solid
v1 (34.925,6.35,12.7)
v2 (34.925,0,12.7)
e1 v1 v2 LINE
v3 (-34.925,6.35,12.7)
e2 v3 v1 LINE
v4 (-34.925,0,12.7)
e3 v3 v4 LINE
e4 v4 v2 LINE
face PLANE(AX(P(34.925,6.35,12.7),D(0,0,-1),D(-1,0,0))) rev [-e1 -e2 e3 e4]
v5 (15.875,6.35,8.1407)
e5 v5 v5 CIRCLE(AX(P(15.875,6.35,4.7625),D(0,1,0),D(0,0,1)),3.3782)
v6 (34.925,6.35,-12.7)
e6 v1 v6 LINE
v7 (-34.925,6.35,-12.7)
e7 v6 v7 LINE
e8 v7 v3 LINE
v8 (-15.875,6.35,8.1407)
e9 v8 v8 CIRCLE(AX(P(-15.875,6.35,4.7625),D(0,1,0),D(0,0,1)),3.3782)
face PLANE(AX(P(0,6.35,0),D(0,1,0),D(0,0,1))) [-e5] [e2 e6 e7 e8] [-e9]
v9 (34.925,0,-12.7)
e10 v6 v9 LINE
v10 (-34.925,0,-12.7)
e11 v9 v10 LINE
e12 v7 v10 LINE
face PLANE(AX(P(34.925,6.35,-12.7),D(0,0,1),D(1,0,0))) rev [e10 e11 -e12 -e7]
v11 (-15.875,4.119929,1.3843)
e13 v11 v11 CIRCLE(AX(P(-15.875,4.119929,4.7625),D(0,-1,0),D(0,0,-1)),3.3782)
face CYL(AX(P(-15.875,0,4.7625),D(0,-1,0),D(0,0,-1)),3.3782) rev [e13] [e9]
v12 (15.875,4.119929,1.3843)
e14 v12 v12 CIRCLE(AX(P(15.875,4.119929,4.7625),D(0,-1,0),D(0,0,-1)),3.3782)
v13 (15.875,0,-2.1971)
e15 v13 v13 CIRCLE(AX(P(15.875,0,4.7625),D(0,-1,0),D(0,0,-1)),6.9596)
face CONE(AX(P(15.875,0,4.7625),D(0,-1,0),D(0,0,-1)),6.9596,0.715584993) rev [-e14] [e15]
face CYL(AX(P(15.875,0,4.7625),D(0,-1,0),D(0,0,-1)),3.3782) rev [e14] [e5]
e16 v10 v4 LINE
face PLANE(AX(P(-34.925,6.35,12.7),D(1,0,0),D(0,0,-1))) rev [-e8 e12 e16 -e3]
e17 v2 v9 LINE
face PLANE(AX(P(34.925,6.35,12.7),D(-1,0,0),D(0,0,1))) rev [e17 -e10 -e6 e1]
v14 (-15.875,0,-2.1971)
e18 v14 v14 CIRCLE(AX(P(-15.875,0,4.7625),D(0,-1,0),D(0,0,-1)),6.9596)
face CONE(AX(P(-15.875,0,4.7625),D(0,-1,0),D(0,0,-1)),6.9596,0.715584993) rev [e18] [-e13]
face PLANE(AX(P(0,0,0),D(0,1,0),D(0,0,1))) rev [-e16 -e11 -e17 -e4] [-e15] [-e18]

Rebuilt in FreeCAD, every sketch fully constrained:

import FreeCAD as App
import Part
import Sketcher
Q = App.Units.Quantity


def add_polygon(sketch, points):
    """Adds a closed chain of lines whose ends are joined by coincident constraints."""
    first, n = sketch.GeometryCount, len(points)
    for a, b in zip(points, points[1:] + points[:1]):
        sketch.addGeometry(Part.LineSegment(App.Vector(*a, 0), App.Vector(*b, 0)), False)
    for i in range(n):
        sketch.addConstraint(Sketcher.Constraint("Coincident", first + i, 2, first + (i + 1) % n, 1))

doc = App.newDocument("Part")
body = doc.addObject("PartDesign::Body", "Body")

sketch1 = doc.addObject("Sketcher::SketchObject", "Sketch")
body.addObject(sketch1)
sketch1.AttachmentSupport = (doc.XZ_Plane, [""])
sketch1.MapMode = "FlatFace"
add_polygon(sketch1, [(-35, -13), (-35, 13), (35, 13), (35, -13)])
sketch1.addConstraint(Sketcher.Constraint("Vertical", 0))
sketch1.addConstraint(Sketcher.Constraint("Horizontal", 1))
sketch1.addConstraint(Sketcher.Constraint("Vertical", 2))
sketch1.addConstraint(Sketcher.Constraint("Horizontal", 3))
sketch1.addConstraint(Sketcher.Constraint("Symmetric", 0, 2, 2, 2, -1, 1))
sketch1.addConstraint(Sketcher.Constraint("DistanceY", 0, 1, 0, 2, Q("1 in")))
sketch1.addConstraint(Sketcher.Constraint("DistanceX", 1, 1, 1, 2, Q("2.75 in")))
pad1 = doc.addObject("PartDesign::Pad", "Pad")
body.addObject(pad1)
pad1.Profile = sketch1
pad1.Length = Q("0.25 in")
pad1.Reversed = True

sketch2 = doc.addObject("Sketcher::SketchObject", "Sketch001")
body.addObject(sketch2)
sketch2.AttachmentSupport = (doc.XZ_Plane, [""])
sketch2.MapMode = "FlatFace"
sketch2.addGeometry(Part.Circle(App.Vector(-15.9, 4.8, 0), App.Vector(0, 0, 1), 3.4), False)
sketch2.addGeometry(Part.Circle(App.Vector(15.9, 4.8, 0), App.Vector(0, 0, 1), 3.4), False)
sketch2.addConstraint(Sketcher.Constraint("Equal", 0, 1))
sketch2.addConstraint(Sketcher.Constraint("Symmetric", 0, 3, 1, 3, -2))
sketch2.addConstraint(Sketcher.Constraint("Diameter", 0, Q("0.266 in")))
sketch2.addConstraint(Sketcher.Constraint("DistanceX", 0, 3, 1, 3, Q("1.25 in")))
sketch2.addConstraint(Sketcher.Constraint("DistanceY", -1, 1, 0, 3, Q("0.1875 in")))
doc.recompute()
hole = doc.addObject("PartDesign::Hole", "Hole")
body.addObject(hole)
hole.Profile = sketch2
hole.ThreadType = "None"
hole.Diameter = Q("0.266 in")
hole.DepthType = "Dimension"
hole.Depth = Q("0.6 in")
hole.DrillPoint = "Angled"
hole.DrillPointAngle = 118
hole.HoleCutType = "Countersink"
hole.HoleCutDiameter = Q("0.548 in")
hole.HoleCutCountersinkAngle = 82

doc.recompute()
